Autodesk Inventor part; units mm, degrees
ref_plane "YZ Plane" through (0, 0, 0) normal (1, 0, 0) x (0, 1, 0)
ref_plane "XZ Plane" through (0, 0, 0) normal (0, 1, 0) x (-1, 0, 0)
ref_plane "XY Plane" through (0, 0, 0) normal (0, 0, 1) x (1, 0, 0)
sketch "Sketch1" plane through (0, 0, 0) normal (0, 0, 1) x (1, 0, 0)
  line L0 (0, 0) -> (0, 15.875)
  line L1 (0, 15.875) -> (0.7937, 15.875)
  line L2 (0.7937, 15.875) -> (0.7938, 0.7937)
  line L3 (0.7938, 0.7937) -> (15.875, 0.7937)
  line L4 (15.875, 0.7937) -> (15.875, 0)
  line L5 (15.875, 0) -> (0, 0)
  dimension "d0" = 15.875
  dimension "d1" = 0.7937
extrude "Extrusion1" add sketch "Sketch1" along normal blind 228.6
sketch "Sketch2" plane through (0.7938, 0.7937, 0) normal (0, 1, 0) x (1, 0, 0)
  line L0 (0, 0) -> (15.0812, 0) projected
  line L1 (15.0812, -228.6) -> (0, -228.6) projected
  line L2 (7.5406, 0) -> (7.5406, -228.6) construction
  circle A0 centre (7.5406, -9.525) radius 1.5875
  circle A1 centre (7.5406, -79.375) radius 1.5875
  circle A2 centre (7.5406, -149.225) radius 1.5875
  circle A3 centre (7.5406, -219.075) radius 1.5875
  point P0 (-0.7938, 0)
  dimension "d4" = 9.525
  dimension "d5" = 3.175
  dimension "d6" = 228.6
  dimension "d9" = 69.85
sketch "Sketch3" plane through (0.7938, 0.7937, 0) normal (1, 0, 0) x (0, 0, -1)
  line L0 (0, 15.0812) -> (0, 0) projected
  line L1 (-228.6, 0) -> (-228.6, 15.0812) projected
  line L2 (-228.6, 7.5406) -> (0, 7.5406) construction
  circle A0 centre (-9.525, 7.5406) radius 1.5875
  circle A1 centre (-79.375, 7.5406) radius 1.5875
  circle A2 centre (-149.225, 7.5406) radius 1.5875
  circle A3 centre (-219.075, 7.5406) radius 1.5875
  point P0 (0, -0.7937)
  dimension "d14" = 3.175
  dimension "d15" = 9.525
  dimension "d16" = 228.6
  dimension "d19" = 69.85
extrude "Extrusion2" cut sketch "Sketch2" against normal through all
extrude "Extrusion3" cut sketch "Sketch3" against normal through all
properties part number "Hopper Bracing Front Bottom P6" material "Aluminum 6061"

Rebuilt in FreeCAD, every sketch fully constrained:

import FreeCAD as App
import Part
import Sketcher

V = App.Vector
Q = App.Units.Quantity

doc = App.newDocument("Part")
body = doc.addObject("PartDesign::Body", "Body")

# Sketch on XY plane
sketch1 = doc.addObject("Sketcher::SketchObject", "Sketch")
body.addObject(sketch1)
sketch1.AttachmentSupport = (doc.XY_Plane, [""])
sketch1.MapMode = "FlatFace"
sketch1.addGeometry([
    Part.LineSegment(V(0, 15.9, 0), V(0, 0, 0)),  # 0
    Part.LineSegment(V(0, 0, 0), V(15.9, 0, 0)),  # 1
    Part.LineSegment(V(15.9, 0, 0), V(15.9, 0.8, 0)),  # 2
    Part.LineSegment(V(15.9, 0.8, 0), V(0.8, 0.8, 0)),  # 3
    Part.LineSegment(V(0.8, 0.8, 0), V(0.8, 15.9, 0)),  # 4
    Part.LineSegment(V(0.8, 15.9, 0), V(0, 15.9, 0)),  # 5
], False)
sketch1.addConstraint([
    Sketcher.Constraint("Coincident", 0, 2, 1, 1),
    Sketcher.Constraint("Coincident", 1, 2, 2, 1),
    Sketcher.Constraint("Coincident", 2, 2, 3, 1),
    Sketcher.Constraint("Coincident", 3, 2, 4, 1),
    Sketcher.Constraint("Coincident", 4, 2, 5, 1),
    Sketcher.Constraint("Coincident", 5, 2, 0, 1),
    Sketcher.Constraint("Vertical", 0),
    Sketcher.Constraint("Horizontal", 1),
    Sketcher.Constraint("Vertical", 2),
    Sketcher.Constraint("Horizontal", 3),
    Sketcher.Constraint("Vertical", 4),
    Sketcher.Constraint("Horizontal", 5),
    Sketcher.Constraint("Coincident", 0, 2, -1, 1),
    Sketcher.Constraint("Equal", 1, 0),
    Sketcher.Constraint("Equal", 5, 2),
    Sketcher.Constraint("DistanceX", 1, 1, 1, 2, Q("0.625 in")),
    Sketcher.Constraint("DistanceX", 5, 2, 5, 1, Q("0.031248 in")),
])
pad1 = doc.addObject("PartDesign::Pad", "Pad")
body.addObject(pad1)
pad1.Profile = sketch1
pad1.Length = Q("9 in")

# Sketch on XZ plane
sketch2 = doc.addObject("Sketcher::SketchObject", "Sketch001")
body.addObject(sketch2)
sketch2.AttachmentSupport = (doc.XZ_Plane, [""])
sketch2.MapMode = "FlatFace"
sketch2.AttachmentOffset = App.Placement(V(0, 0, -0.031248 * 25.4), App.Rotation())
sketch2.addGeometry([
    Part.Circle(V(8.3, 9.5, 0), V(0, 0, 1), 1.6),
    Part.Circle(V(8.3, 79.4, 0), V(0, 0, 1), 1.6),
    Part.Circle(V(8.3, 149.2, 0), V(0, 0, 1), 1.6),
    Part.Circle(V(8.3, 219.1, 0), V(0, 0, 1), 1.6),
], False)
sketch2.addConstraint([
    Sketcher.Constraint("Equal", 0, 1),
    Sketcher.Constraint("Equal", 1, 2),
    Sketcher.Constraint("Equal", 2, 3),
    Sketcher.Constraint("Vertical", 0, 3, 1, 3),
    Sketcher.Constraint("Vertical", 1, 3, 2, 3),
    Sketcher.Constraint("Vertical", 2, 3, 3, 3),
    Sketcher.Constraint("Diameter", 0, Q("0.125 in")),
    Sketcher.Constraint("DistanceY", 0, 3, 1, 3, Q("2.75 in")),
    Sketcher.Constraint("DistanceY", 1, 3, 2, 3, Q("2.75 in")),
    Sketcher.Constraint("DistanceY", 2, 3, 3, 3, Q("2.75 in")),
    Sketcher.Constraint("DistanceY", -1, 1, 0, 3, Q("0.375 in")),
    Sketcher.Constraint("DistanceX", -1, 1, 0, 3, Q("0.328126 in")),
])
pocket1 = doc.addObject("PartDesign::Pocket", "Pocket")
body.addObject(pocket1)
pocket1.Profile = sketch2
pocket1.Type = "ThroughAll"
pocket1.Reversed = True

# Sketch on YZ plane
sketch3 = doc.addObject("Sketcher::SketchObject", "Sketch002")
body.addObject(sketch3)
sketch3.AttachmentSupport = (doc.YZ_Plane, [""])
sketch3.MapMode = "FlatFace"
sketch3.AttachmentOffset = App.Placement(V(0, 0, 0.031252 * 25.4), App.Rotation())
sketch3.addGeometry([
    Part.Circle(V(8.3, 9.5, 0), V(0, 0, 1), 1.6),
    Part.Circle(V(8.3, 79.4, 0), V(0, 0, 1), 1.6),
    Part.Circle(V(8.3, 149.2, 0), V(0, 0, 1), 1.6),
    Part.Circle(V(8.3, 219.1, 0), V(0, 0, 1), 1.6),
], False)
sketch3.addConstraint([
    Sketcher.Constraint("Equal", 0, 1),
    Sketcher.Constraint("Equal", 1, 2),
    Sketcher.Constraint("Equal", 2, 3),
    Sketcher.Constraint("Vertical", 0, 3, 1, 3),
    Sketcher.Constraint("Vertical", 1, 3, 2, 3),
    Sketcher.Constraint("Vertical", 2, 3, 3, 3),
    Sketcher.Constraint("Diameter", 0, Q("0.125 in")),
    Sketcher.Constraint("DistanceY", 0, 3, 1, 3, Q("2.75 in")),
    Sketcher.Constraint("DistanceY", 1, 3, 2, 3, Q("2.75 in")),
    Sketcher.Constraint("DistanceY", 2, 3, 3, 3, Q("2.75 in")),
    Sketcher.Constraint("DistanceY", -1, 1, 0, 3, Q("0.375 in")),
    Sketcher.Constraint("DistanceX", -1, 1, 0, 3, Q("0.328122 in")),
])
pocket2 = doc.addObject("PartDesign::Pocket", "Pocket001")
body.addObject(pocket2)
pocket2.Profile = sketch3
pocket2.Type = "ThroughAll"

doc.recompute()
